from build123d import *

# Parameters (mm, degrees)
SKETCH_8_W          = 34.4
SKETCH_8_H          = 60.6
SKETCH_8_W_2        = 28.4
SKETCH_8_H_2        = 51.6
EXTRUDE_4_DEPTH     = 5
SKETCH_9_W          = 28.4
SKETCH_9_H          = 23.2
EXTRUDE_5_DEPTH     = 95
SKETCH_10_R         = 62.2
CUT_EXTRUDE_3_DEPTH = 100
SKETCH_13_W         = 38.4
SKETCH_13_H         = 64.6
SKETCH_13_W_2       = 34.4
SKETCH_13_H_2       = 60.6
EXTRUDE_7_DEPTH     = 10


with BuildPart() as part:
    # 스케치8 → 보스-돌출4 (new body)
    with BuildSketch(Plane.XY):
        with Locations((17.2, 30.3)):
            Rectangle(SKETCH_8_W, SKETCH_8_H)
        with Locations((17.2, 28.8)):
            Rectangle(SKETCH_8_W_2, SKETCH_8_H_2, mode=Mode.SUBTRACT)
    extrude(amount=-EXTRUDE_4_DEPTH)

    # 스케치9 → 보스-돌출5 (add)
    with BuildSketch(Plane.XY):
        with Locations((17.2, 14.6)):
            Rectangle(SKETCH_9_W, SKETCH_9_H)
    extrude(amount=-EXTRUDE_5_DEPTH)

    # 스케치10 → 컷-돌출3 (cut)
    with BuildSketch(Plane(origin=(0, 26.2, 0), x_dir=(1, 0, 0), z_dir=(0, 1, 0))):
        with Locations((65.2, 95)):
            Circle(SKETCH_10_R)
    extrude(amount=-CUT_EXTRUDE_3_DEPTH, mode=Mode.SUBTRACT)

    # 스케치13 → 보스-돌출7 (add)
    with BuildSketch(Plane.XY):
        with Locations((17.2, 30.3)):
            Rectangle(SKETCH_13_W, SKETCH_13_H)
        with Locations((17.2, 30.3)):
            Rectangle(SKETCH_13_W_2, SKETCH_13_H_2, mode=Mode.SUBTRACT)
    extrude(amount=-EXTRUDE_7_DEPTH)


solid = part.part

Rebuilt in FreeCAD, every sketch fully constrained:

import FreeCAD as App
import Part
import Sketcher
from FreeCAD import Vector
Q = App.Units.Quantity


def add_polygon(sketch, points):
    """Adds a closed chain of lines whose ends are joined by coincident constraints."""
    first, n = sketch.GeometryCount, len(points)
    for a, b in zip(points, points[1:] + points[:1]):
        sketch.addGeometry(Part.LineSegment(App.Vector(*a, 0), App.Vector(*b, 0)), False)
    for i in range(n):
        sketch.addConstraint(Sketcher.Constraint("Coincident", first + i, 2, first + (i + 1) % n, 1))

doc = App.newDocument("Part")
body = doc.addObject("PartDesign::Body", "Body")

# Sketch on XY plane
sketch1 = body.newObject("Sketcher::SketchObject", "Sketch")
sketch1.AttachmentSupport = (doc.getObject("XY_Plane"), [""])
sketch1.MapMode = "FlatFace"
add_polygon(sketch1, [(0, 61), (0, 0), (34, 0), (34, 61)])  # lines 0-3
add_polygon(sketch1, [(31, 3), (3, 3), (3, 55), (31, 55)])  # lines 4-7
sketch1.addConstraint(Sketcher.Constraint("Vertical", 0))
sketch1.addConstraint(Sketcher.Constraint("Horizontal", 1))
sketch1.addConstraint(Sketcher.Constraint("Vertical", 2))
sketch1.addConstraint(Sketcher.Constraint("Horizontal", 3))
sketch1.addConstraint(Sketcher.Constraint("Horizontal", 4))
sketch1.addConstraint(Sketcher.Constraint("Vertical", 5))
sketch1.addConstraint(Sketcher.Constraint("Horizontal", 6))
sketch1.addConstraint(Sketcher.Constraint("Vertical", 7))
sketch1.addConstraint(Sketcher.Constraint("Coincident", 0, 2, -1, 1))
sketch1.addConstraint(Sketcher.Constraint("DistanceX", 1, 1, 1, 2, Q("34.4 mm")))
sketch1.addConstraint(Sketcher.Constraint("DistanceX", 4, 2, 4, 1, Q("28.4 mm")))
sketch1.addConstraint(Sketcher.Constraint("DistanceY", 0, 2, 0, 1, Q("60.6 mm")))
sketch1.addConstraint(Sketcher.Constraint("DistanceY", 5, 1, 5, 2, Q("51.6 mm")))
sketch1.addConstraint(Sketcher.Constraint("DistanceX", -1, 1, 4, 2, Q("3 mm")))
sketch1.addConstraint(Sketcher.Constraint("DistanceY", -1, 1, 4, 2, Q("3 mm")))
pad1 = body.newObject("PartDesign::Pad", "Pad")
pad1.Profile = sketch1
pad1.Length = 5
pad1.Reversed = True

# Sketch on XY plane
sketch2 = body.newObject("Sketcher::SketchObject", "Sketch001")
sketch2.AttachmentSupport = (doc.getObject("XY_Plane"), [""])
sketch2.MapMode = "FlatFace"
add_polygon(sketch2, [(3, 26), (3, 3), (31, 3), (31, 26)])  # lines 0-3
sketch2.addConstraint(Sketcher.Constraint("Vertical", 0))
sketch2.addConstraint(Sketcher.Constraint("Horizontal", 1))
sketch2.addConstraint(Sketcher.Constraint("Vertical", 2))
sketch2.addConstraint(Sketcher.Constraint("Horizontal", 3))
sketch2.addConstraint(Sketcher.Constraint("DistanceX", 1, 1, 1, 2, Q("28.4 mm")))
sketch2.addConstraint(Sketcher.Constraint("DistanceY", 0, 2, 0, 1, Q("23.2 mm")))
sketch2.addConstraint(Sketcher.Constraint("DistanceX", -1, 1, 0, 2, Q("3 mm")))
sketch2.addConstraint(Sketcher.Constraint("DistanceY", -1, 1, 0, 2, Q("3 mm")))
pad2 = body.newObject("PartDesign::Pad", "Pad001")
pad2.Profile = sketch2
pad2.Length = 95
pad2.Reversed = True

# Sketch on XZ plane
sketch3 = body.newObject("Sketcher::SketchObject", "Sketch002")
sketch3.AttachmentSupport = (doc.getObject("XZ_Plane"), [""])
sketch3.MapMode = "FlatFace"
sketch3.AttachmentOffset = App.Placement(Vector(0, 0, -26.2), App.Rotation())
sketch3.addGeometry(Part.Circle(Vector(65, -95, 0), Vector(0, 0, 1), 62), False)
sketch3.addConstraint(Sketcher.Constraint("Diameter", 0, Q("124.4 mm")))
sketch3.addConstraint(Sketcher.Constraint("DistanceY", 0, 3, -1, 1, Q("95 mm")))
sketch3.addConstraint(Sketcher.Constraint("DistanceX", -1, 1, 0, 3, Q("65.2 mm")))
pocket1 = body.newObject("PartDesign::Pocket", "Pocket")
pocket1.Profile = sketch3
pocket1.Length = 100
pocket1.Reversed = True

# Sketch on XY plane
sketch4 = body.newObject("Sketcher::SketchObject", "Sketch003")
sketch4.AttachmentSupport = (doc.getObject("XY_Plane"), [""])
sketch4.MapMode = "FlatFace"
add_polygon(sketch4, [(-2, 63), (-2, -2), (36, -2), (36, 63)])  # lines 0-3
add_polygon(sketch4, [(34, 0), (0, 0), (0, 61), (34, 61)])  # lines 4-7
sketch4.addConstraint(Sketcher.Constraint("Vertical", 0))
sketch4.addConstraint(Sketcher.Constraint("Horizontal", 1))
sketch4.addConstraint(Sketcher.Constraint("Vertical", 2))
sketch4.addConstraint(Sketcher.Constraint("Horizontal", 3))
sketch4.addConstraint(Sketcher.Constraint("Horizontal", 4))
sketch4.addConstraint(Sketcher.Constraint("Vertical", 5))
sketch4.addConstraint(Sketcher.Constraint("Horizontal", 6))
sketch4.addConstraint(Sketcher.Constraint("Vertical", 7))
sketch4.addConstraint(Sketcher.Constraint("Coincident", 4, 2, -1, 1))
sketch4.addConstraint(Sketcher.Constraint("DistanceX", 1, 1, 1, 2, Q("38.4 mm")))
sketch4.addConstraint(Sketcher.Constraint("DistanceX", 4, 2, 4, 1, Q("34.4 mm")))
sketch4.addConstraint(Sketcher.Constraint("DistanceY", 0, 2, 0, 1, Q("64.6 mm")))
sketch4.addConstraint(Sketcher.Constraint("DistanceY", 5, 1, 5, 2, Q("60.6 mm")))
sketch4.addConstraint(Sketcher.Constraint("DistanceX", 0, 2, -1, 1, Q("2 mm")))
sketch4.addConstraint(Sketcher.Constraint("DistanceY", 0, 2, -1, 1, Q("2 mm")))
pad3 = body.newObject("PartDesign::Pad", "Pad002")
pad3.Profile = sketch4
pad3.Length = 10
pad3.Reversed = True

doc.recompute()
